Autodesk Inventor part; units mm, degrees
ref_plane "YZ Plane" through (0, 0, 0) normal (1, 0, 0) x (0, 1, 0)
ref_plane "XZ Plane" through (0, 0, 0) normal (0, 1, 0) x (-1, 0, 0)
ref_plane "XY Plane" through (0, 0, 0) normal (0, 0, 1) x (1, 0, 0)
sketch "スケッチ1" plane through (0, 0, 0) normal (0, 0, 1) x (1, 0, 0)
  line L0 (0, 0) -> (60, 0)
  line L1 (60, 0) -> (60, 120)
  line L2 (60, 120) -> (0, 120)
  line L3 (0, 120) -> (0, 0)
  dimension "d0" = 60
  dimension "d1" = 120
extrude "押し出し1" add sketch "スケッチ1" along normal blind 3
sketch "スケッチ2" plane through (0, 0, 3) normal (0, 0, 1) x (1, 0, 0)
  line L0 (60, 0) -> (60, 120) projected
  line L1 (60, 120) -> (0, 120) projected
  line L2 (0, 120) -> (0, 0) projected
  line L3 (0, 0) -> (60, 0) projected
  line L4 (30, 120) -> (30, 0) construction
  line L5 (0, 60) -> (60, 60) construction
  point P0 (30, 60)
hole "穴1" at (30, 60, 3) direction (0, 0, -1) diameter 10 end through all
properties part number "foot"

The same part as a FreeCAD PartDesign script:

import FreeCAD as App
import Part
import Sketcher

V = App.Vector
Q = App.Units.Quantity


def add_polygon(sketch, points):
    """Adds a closed chain of lines whose ends are joined by coincident constraints."""
    first, n = sketch.GeometryCount, len(points)
    for a, b in zip(points, points[1:] + points[:1]):
        sketch.addGeometry(Part.LineSegment(App.Vector(*a, 0), App.Vector(*b, 0)), False)
    for i in range(n):
        sketch.addConstraint(Sketcher.Constraint("Coincident", first + i, 2, first + (i + 1) % n, 1))

doc = App.newDocument("Part")
params = doc.addObject("Spreadsheet::Sheet", "Params")
for row, (alias, value) in enumerate([
    ("sketch1_width", "60 mm"),
    ("sketch1_height", "120 mm"),
    ("pad1_length", "3 mm"),
    ("sketch2_diameter", "10 mm"),
    ("hole_diameter", "10 mm"),
], start=1):
    params.set(f"A{row}", alias)
    params.set(f"B{row}", "=" + value)
    params.setAlias(f"B{row}", alias)

body = doc.addObject("PartDesign::Body", "Body")

# Sketch on XY plane
sketch1 = body.newObject("Sketcher::SketchObject", "Sketch")
sketch1.AttachmentSupport = (doc.getObject("XY_Plane"), [""])
sketch1.MapMode = "FlatFace"
add_polygon(sketch1, [(0, 120), (0, 0), (60, 0), (60, 120)])  # lines 0-3
sketch1.addConstraint(Sketcher.Constraint("Vertical", 0))
sketch1.addConstraint(Sketcher.Constraint("Horizontal", 1))
sketch1.addConstraint(Sketcher.Constraint("Vertical", 2))
sketch1.addConstraint(Sketcher.Constraint("Horizontal", 3))
sketch1.addConstraint(Sketcher.Constraint("Coincident", 0, 2, -1, 1))
sketch1.addConstraint(Sketcher.Constraint("DistanceX", 1, 1, 1, 2, Q("60 mm")))
sketch1.addConstraint(Sketcher.Constraint("DistanceY", 0, 2, 0, 1, Q("120 mm")))
sketch1.setExpression("Constraints[9]", "Params.sketch1_width")
sketch1.setExpression("Constraints[10]", "Params.sketch1_height")
pad1 = body.newObject("PartDesign::Pad", "Pad")
pad1.Profile = sketch1
pad1.setExpression("Length", "Params.pad1_length")

# Sketch on XY plane
sketch2 = body.newObject("Sketcher::SketchObject", "Sketch001")
sketch2.AttachmentSupport = (doc.getObject("XY_Plane"), [""])
sketch2.MapMode = "FlatFace"
sketch2.AttachmentOffset = App.Placement(V(0, 0, 3), App.Rotation())
sketch2.addGeometry(Part.Circle(V(30, 60, 0), V(0, 0, 1), 5), False)
sketch2.addConstraint(Sketcher.Constraint("Diameter", 0, Q("10 mm")))
sketch2.addConstraint(Sketcher.Constraint("DistanceX", -1, 1, 0, 3, Q("30 mm")))
sketch2.addConstraint(Sketcher.Constraint("DistanceY", -1, 1, 0, 3, Q("60 mm")))
sketch2.setExpression("Constraints[0]", "Params.sketch2_diameter")
doc.recompute()
hole = body.newObject("PartDesign::Hole", "Hole")
hole.Profile = sketch2
hole.ThreadType = "None"
hole.setExpression("Diameter", "Params.hole_diameter")
hole.DepthType = "ThroughAll"

doc.recompute()
